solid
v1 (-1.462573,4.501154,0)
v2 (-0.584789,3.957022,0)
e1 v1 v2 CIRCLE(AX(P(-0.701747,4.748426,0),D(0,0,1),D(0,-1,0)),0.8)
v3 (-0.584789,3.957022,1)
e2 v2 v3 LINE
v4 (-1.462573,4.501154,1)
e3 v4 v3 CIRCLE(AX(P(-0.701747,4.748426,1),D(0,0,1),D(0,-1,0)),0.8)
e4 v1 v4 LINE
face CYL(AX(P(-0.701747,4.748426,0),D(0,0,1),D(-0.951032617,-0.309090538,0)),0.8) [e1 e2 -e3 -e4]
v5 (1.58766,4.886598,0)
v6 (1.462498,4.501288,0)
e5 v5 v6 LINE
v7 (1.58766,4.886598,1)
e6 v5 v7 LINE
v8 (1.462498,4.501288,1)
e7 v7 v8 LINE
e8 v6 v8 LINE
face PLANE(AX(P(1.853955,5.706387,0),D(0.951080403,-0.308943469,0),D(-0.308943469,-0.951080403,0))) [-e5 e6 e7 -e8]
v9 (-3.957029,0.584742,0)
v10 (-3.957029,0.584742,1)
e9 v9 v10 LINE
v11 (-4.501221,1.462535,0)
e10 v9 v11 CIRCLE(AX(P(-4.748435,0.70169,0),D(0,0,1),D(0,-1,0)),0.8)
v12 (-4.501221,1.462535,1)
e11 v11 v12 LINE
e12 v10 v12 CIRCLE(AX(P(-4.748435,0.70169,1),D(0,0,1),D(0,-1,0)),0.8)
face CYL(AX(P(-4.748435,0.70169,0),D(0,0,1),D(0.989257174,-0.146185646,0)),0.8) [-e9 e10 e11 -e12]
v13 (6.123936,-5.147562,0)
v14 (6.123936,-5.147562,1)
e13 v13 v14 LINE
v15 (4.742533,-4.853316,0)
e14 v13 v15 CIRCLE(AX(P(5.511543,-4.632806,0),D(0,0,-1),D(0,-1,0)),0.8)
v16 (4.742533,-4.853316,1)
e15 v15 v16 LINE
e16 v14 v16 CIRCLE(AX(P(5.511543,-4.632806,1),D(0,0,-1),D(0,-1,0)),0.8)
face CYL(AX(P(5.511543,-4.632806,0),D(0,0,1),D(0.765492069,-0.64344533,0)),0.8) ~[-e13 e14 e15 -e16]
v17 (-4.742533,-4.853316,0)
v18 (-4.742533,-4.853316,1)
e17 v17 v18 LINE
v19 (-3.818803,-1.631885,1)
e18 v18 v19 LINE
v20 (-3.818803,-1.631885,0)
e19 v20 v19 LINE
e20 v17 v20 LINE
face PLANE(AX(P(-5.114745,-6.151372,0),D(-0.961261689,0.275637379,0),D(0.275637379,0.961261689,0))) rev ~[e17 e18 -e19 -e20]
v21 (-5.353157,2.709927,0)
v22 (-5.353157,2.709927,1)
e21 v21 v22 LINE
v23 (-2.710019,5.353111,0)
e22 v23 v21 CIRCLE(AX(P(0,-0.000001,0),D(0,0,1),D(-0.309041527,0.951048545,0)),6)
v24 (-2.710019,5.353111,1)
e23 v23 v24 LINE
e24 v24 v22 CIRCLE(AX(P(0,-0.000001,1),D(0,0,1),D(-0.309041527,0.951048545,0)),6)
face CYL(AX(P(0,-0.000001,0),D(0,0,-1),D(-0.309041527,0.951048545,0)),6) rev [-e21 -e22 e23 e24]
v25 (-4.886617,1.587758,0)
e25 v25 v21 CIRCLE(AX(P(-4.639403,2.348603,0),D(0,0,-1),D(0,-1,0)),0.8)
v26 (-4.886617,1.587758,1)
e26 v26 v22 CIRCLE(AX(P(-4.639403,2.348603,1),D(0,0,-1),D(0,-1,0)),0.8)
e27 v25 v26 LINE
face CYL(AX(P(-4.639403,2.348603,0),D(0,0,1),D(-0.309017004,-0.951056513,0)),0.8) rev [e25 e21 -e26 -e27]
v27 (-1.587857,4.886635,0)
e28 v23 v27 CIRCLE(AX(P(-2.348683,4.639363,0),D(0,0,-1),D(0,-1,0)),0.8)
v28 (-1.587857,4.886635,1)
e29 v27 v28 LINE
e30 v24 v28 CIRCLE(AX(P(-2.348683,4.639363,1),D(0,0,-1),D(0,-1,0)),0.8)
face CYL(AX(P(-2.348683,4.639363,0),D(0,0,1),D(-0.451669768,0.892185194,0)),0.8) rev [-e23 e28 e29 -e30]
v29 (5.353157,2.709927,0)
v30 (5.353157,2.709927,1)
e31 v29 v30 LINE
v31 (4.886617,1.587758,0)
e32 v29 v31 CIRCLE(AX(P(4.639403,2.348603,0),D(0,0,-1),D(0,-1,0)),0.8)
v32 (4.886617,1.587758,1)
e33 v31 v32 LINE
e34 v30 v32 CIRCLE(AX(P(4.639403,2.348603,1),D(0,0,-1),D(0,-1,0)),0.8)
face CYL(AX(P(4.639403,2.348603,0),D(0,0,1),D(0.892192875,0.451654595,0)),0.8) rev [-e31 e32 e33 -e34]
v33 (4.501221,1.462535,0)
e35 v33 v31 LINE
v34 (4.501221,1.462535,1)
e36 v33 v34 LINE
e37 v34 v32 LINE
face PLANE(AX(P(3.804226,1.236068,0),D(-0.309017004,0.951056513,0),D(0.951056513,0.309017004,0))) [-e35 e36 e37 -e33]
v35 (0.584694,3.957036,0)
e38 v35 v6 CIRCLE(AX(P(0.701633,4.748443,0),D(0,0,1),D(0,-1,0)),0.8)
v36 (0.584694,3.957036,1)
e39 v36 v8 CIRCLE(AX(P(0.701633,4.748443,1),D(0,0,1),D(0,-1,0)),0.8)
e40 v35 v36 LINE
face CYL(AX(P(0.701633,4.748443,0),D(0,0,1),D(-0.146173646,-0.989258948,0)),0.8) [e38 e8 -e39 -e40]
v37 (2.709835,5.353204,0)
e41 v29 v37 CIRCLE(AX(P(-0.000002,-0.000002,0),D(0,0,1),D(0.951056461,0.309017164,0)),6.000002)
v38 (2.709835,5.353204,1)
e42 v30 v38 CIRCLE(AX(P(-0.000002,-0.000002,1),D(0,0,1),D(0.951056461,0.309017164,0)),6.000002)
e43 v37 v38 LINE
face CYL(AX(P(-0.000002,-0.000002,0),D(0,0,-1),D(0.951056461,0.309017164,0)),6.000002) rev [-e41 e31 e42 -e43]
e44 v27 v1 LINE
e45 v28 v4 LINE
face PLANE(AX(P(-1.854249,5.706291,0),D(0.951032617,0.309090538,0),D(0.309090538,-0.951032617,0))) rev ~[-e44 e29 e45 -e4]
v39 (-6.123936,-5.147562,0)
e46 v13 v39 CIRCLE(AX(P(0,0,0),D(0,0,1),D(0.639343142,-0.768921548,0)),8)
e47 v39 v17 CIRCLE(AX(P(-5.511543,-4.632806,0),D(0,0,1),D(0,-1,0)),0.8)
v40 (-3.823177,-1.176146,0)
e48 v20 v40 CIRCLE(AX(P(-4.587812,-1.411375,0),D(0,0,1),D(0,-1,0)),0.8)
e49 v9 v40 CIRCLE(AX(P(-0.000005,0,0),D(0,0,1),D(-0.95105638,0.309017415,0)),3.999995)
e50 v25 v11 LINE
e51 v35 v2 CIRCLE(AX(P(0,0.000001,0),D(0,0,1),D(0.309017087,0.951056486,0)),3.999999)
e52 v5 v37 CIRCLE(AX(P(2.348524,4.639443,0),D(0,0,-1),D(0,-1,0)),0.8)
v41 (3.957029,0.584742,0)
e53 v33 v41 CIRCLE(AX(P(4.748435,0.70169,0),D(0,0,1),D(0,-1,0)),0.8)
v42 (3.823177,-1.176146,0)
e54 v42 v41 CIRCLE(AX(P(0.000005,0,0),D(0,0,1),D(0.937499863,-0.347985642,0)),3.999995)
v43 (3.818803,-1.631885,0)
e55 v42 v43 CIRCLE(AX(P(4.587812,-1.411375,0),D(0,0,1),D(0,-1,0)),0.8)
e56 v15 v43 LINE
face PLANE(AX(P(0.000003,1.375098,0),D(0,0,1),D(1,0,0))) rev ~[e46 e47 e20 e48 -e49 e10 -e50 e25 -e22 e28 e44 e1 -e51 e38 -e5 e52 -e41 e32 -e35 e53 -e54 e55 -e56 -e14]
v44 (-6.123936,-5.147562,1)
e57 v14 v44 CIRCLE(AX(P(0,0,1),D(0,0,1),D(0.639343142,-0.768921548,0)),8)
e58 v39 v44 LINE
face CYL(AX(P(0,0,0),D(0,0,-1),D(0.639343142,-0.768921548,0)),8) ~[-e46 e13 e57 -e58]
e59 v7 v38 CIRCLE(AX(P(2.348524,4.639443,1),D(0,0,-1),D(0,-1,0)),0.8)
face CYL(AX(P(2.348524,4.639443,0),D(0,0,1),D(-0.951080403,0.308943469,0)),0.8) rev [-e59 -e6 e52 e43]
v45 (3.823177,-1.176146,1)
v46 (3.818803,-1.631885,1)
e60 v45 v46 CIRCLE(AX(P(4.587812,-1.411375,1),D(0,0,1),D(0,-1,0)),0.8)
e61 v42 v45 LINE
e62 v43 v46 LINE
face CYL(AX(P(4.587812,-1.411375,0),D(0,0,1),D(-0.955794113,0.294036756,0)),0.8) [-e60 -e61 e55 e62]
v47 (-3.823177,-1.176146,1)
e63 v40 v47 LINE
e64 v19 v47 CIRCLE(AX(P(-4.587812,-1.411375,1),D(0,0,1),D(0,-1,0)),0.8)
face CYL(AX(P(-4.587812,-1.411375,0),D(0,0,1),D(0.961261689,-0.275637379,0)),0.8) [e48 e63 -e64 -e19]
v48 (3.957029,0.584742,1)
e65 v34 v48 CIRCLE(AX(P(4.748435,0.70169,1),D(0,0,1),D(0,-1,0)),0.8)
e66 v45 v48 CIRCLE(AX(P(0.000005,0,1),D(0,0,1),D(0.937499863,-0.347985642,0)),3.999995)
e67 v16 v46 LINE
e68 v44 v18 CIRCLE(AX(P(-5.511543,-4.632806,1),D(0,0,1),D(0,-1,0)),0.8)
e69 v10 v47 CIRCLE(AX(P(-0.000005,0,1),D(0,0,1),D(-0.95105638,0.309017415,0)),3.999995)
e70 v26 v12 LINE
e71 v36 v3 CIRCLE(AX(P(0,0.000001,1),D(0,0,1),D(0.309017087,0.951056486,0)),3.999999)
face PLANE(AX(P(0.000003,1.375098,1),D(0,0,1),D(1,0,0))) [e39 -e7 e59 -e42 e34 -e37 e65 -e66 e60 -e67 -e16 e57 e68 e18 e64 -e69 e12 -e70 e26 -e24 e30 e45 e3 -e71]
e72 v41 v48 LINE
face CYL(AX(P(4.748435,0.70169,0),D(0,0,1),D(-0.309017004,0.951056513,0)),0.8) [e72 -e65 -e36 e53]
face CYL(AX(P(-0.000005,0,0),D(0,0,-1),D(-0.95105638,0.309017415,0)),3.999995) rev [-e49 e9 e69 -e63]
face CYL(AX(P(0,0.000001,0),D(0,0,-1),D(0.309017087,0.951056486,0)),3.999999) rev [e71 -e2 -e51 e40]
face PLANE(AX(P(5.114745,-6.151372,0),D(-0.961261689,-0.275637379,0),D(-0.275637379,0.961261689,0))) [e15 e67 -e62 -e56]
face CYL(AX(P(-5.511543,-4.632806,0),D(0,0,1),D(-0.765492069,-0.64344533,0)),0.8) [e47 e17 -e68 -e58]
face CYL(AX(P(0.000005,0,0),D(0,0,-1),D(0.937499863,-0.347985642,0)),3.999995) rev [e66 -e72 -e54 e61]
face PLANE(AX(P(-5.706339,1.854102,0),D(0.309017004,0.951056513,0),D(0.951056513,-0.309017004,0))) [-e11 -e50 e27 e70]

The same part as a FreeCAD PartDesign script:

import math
import FreeCAD as App
import Part
import Sketcher
from FreeCAD import Vector
Q = App.Units.Quantity


def edges_at(feature, points):
    """Names of the edges that pass closest to the given points."""
    edges = feature.Shape.Edges
    near = lambda p: min(range(len(edges)), key=lambda i: edges[i].distToShape(Part.Vertex(*p))[0])
    return sorted({f"Edge{near(p) + 1}" for p in points})

doc = App.newDocument("Part")
body = doc.addObject("PartDesign::Body", "Body")

# Sketch on XY plane
sketch1 = body.newObject("Sketcher::SketchObject", "Sketch")
sketch1.AttachmentSupport = (doc.getObject("XY_Plane"), [""])
sketch1.MapMode = "FlatFace"
sketch1.addGeometry(Part.ArcOfCircle(Part.Circle(Vector(0, 0, 0), Vector(0, 0, 1), 8), math.radians(-50.257143), math.radians(230.257143)), False)
sketch1.addGeometry(Part.LineSegment(Vector(-5.114745, -6.151372, 0), Vector(-3.75, -1.391941, 0)), False)
sketch1.addGeometry(Part.ArcOfCircle(Part.Circle(Vector(-0.000005, 0, 0), Vector(0, 0, 1), 3.999995), math.radians(161.999975), math.radians(200.364157)), False)
sketch1.addGeometry(Part.LineSegment(Vector(-3.804226, 1.236068, 0), Vector(-5.706339, 1.854102, 0)), False)
sketch1.addGeometry(Part.ArcOfCircle(Part.Circle(Vector(0, -0.000001, 0), Vector(0, 0, 1), 6), math.radians(108.001478), math.radians(161.999995)), False)
sketch1.addGeometry(Part.LineSegment(Vector(-1.854249, 5.706291, 0), Vector(-1.236068, 3.804226, 0)), False)
sketch1.addGeometry(Part.ArcOfCircle(Part.Circle(Vector(0, 0.000001, 0), Vector(0, 0, 1), 3.999999), math.radians(71.999994), math.radians(108.000006)), False)
sketch1.addGeometry(Part.LineSegment(Vector(1.236068, 3.804226, 0), Vector(1.853955, 5.706387, 0)), False)
sketch1.addGeometry(Part.ArcOfCircle(Part.Circle(Vector(-0.000002, -0.000002, 0), Vector(0, 0, 1), 6.000002), math.radians(18.00001), math.radians(72.001462)), False)
sketch1.addGeometry(Part.LineSegment(Vector(5.706339, 1.854102, 0), Vector(3.804226, 1.236068, 0)), False)
sketch1.addGeometry(Part.ArcOfCircle(Part.Circle(Vector(0.000005, 0, 0), Vector(0, 0, 1), 3.999995), math.radians(-20.364157), math.radians(18.000025)), False)
sketch1.addGeometry(Part.LineSegment(Vector(3.75, -1.391941, 0), Vector(5.114745, -6.151372, 0)), False)
sketch1.addConstraint(Sketcher.Constraint("Coincident", 0, 2, 1, 1))
sketch1.addConstraint(Sketcher.Constraint("Coincident", 1, 2, 2, 2))
sketch1.addConstraint(Sketcher.Constraint("Coincident", 2, 1, 3, 1))
sketch1.addConstraint(Sketcher.Constraint("Coincident", 3, 2, 4, 2))
sketch1.addConstraint(Sketcher.Constraint("Coincident", 4, 1, 5, 1))
sketch1.addConstraint(Sketcher.Constraint("Coincident", 5, 2, 6, 2))
sketch1.addConstraint(Sketcher.Constraint("Coincident", 6, 1, 7, 1))
sketch1.addConstraint(Sketcher.Constraint("Coincident", 7, 2, 8, 2))
sketch1.addConstraint(Sketcher.Constraint("Coincident", 8, 1, 9, 1))
sketch1.addConstraint(Sketcher.Constraint("Coincident", 9, 2, 10, 2))
sketch1.addConstraint(Sketcher.Constraint("Coincident", 10, 1, 11, 1))
sketch1.addConstraint(Sketcher.Constraint("Coincident", 11, 2, 0, 1))
sketch1.addConstraint(Sketcher.Constraint("Coincident", 0, 3, -1, 1))
sketch1.addConstraint(Sketcher.Constraint("Coincident", 2, 3, -1, 1))
sketch1.addConstraint(Sketcher.Constraint("Coincident", 4, 3, -1, 1))
sketch1.addConstraint(Sketcher.Constraint("Coincident", 6, 3, -1, 1))
sketch1.addConstraint(Sketcher.Constraint("Coincident", 8, 3, -1, 1))
sketch1.addConstraint(Sketcher.Constraint("Coincident", 10, 3, -1, 1))
sketch1.addConstraint(Sketcher.Constraint("Equal", 2, 10))
sketch1.addConstraint(Sketcher.Constraint("Symmetric", 3, 2, 8, 1, -2))
sketch1.addConstraint(Sketcher.Constraint("Horizontal", 5, 2, 6, 1))
sketch1.addConstraint(Sketcher.Constraint("Horizontal", 2, 1, 9, 2))
sketch1.addConstraint(Sketcher.Constraint("Horizontal", 1, 2, 10, 1))
sketch1.addConstraint(Sketcher.Constraint("Horizontal", 0, 2, 11, 2))
sketch1.addConstraint(Sketcher.Constraint("Equal", 3, 5))
sketch1.addConstraint(Sketcher.Constraint("Radius", 0, 8.0))
sketch1.addConstraint(Sketcher.Constraint("Radius", 4, 6.0))
sketch1.addConstraint(Sketcher.Constraint("Radius", 6, 3.999999))
sketch1.addConstraint(Sketcher.Constraint("Angle", 1, Q("73.999999 deg")))
sketch1.addConstraint(Sketcher.Constraint("Angle", 3, Q("161.999999 deg")))
sketch1.addConstraint(Sketcher.Constraint("DistanceX", 1, 2, -1, 1, 3.75))
sketch1.addConstraint(Sketcher.Constraint("DistanceY", -1, 1, 3, 2, 1.854102))
sketch1.addConstraint(Sketcher.Constraint("DistanceX", 4, 1, -1, 1, 1.854249))
sketch1.addConstraint(Sketcher.Constraint("DistanceX", 4, 1, 5, 2, 0.618181))
sketch1.addConstraint(Sketcher.Constraint("DistanceY", 6, 1, 7, 2, 1.902161))
pad1 = body.newObject("PartDesign::Pad", "Pad")
pad1.Profile = sketch1
pad1.Length = 1
doc.recompute()

fillet = body.newObject("PartDesign::Fillet", "Fillet")
fillet.Base = (pad1, edges_at(pad1, [
    (-5.115, -6.151, 0.5),
    (-3.75, -1.392, 0.5),
    (-3.804, 1.236, 0.5),
    (-5.706, 1.854, 0.5),
    (-1.854, 5.706, 0.5),
    (-1.236, 3.804, 0.5),
    (1.236, 3.804, 0.5),
    (1.854, 5.706, 0.5),
    (5.706, 1.854, 0.5),
    (3.804, 1.236, 0.5),
    (3.75, -1.392, 0.5),
    (5.115, -6.151, 0.5),
]))
fillet.Radius = 0.8

doc.recompute()
